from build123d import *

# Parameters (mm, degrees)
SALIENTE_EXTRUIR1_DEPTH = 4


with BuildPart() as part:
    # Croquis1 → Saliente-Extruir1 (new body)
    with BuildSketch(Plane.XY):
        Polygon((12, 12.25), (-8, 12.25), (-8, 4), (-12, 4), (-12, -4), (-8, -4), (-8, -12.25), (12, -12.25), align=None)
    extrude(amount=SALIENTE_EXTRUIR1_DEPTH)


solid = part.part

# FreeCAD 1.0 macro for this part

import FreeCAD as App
import Part
import Sketcher

V = App.Vector

doc = App.newDocument("Part")
body = doc.addObject("PartDesign::Body", "Body")

# Sketch on XY plane
sketch1 = body.newObject("Sketcher::SketchObject", "Sketch")
sketch1.AttachmentSupport = (doc.getObject("XY_Plane"), [""])
sketch1.MapMode = "FlatFace"
sketch1.addGeometry(Part.LineSegment(V(12, 12.2, 0), V(-8, 12.2, 0)), False)
sketch1.addGeometry(Part.LineSegment(V(-8, 12.2, 0), V(-8, 4, 0)), False)
sketch1.addGeometry(Part.LineSegment(V(-8, 4, 0), V(-12, 4, 0)), False)
sketch1.addGeometry(Part.LineSegment(V(-12, 4, 0), V(-12, -4, 0)), False)
sketch1.addGeometry(Part.LineSegment(V(-12, -4, 0), V(-8, -4, 0)), False)
sketch1.addGeometry(Part.LineSegment(V(-8, -4, 0), V(-8, -12.2, 0)), False)
sketch1.addGeometry(Part.LineSegment(V(-8, -12.2, 0), V(12, -12.2, 0)), False)
sketch1.addGeometry(Part.LineSegment(V(12, -12.2, 0), V(12, 12.2, 0)), False)
sketch1.addConstraint(Sketcher.Constraint("Coincident", 0, 2, 1, 1))
sketch1.addConstraint(Sketcher.Constraint("Coincident", 1, 2, 2, 1))
sketch1.addConstraint(Sketcher.Constraint("Coincident", 2, 2, 3, 1))
sketch1.addConstraint(Sketcher.Constraint("Coincident", 3, 2, 4, 1))
sketch1.addConstraint(Sketcher.Constraint("Coincident", 4, 2, 5, 1))
sketch1.addConstraint(Sketcher.Constraint("Coincident", 5, 2, 6, 1))
sketch1.addConstraint(Sketcher.Constraint("Coincident", 6, 2, 7, 1))
sketch1.addConstraint(Sketcher.Constraint("Coincident", 7, 2, 0, 1))
sketch1.addConstraint(Sketcher.Constraint("Horizontal", 0))
sketch1.addConstraint(Sketcher.Constraint("Vertical", 1))
sketch1.addConstraint(Sketcher.Constraint("Horizontal", 2))
sketch1.addConstraint(Sketcher.Constraint("Vertical", 3))
sketch1.addConstraint(Sketcher.Constraint("Horizontal", 4))
sketch1.addConstraint(Sketcher.Constraint("Vertical", 5))
sketch1.addConstraint(Sketcher.Constraint("Horizontal", 6))
sketch1.addConstraint(Sketcher.Constraint("Vertical", 7))
sketch1.addConstraint(Sketcher.Constraint("Symmetric", 1, 2, 4, 2, -1))
sketch1.addConstraint(Sketcher.Constraint("Equal", 1, 5))
sketch1.addConstraint(Sketcher.Constraint("DistanceX", 0, 2, 0, 1, 20.0))
sketch1.addConstraint(Sketcher.Constraint("DistanceX", 2, 2, 2, 1, 4.0))
sketch1.addConstraint(Sketcher.Constraint("DistanceY", 3, 2, 3, 1, 8.0))
sketch1.addConstraint(Sketcher.Constraint("DistanceY", 7, 1, 7, 2, 24.5))
sketch1.addConstraint(Sketcher.Constraint("DistanceX", 0, 2, -1, 1, 8.0))
pad1 = body.newObject("PartDesign::Pad", "Pad")
pad1.Profile = sketch1
pad1.Length = 4

doc.recompute()
